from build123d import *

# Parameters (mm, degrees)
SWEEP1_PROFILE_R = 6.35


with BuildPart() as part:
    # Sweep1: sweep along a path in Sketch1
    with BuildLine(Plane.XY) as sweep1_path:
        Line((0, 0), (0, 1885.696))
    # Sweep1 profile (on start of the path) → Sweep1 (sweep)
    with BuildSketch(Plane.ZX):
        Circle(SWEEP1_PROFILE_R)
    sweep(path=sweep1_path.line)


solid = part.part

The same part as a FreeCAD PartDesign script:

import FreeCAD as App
import Part
import Sketcher

V = App.Vector
Q = App.Units.Quantity

doc = App.newDocument("Part")
body = doc.addObject("PartDesign::Body", "Body")

sketch1 = body.newObject("Sketcher::SketchObject", "Sketch")
sketch1.AttachmentSupport = (doc.getObject("XZ_Plane"), [""])
sketch1.MapMode = "FlatFace"
sketch1.addGeometry(Part.Circle(V(0, 0, 0), V(0, 0, 1), 6.35), False)
sketch1.addConstraint([
    Sketcher.Constraint("Coincident", 0, 3, -1, 1),
    Sketcher.Constraint("Diameter", 0, Q("0.5 in")),
])

sketch2 = body.newObject("Sketcher::SketchObject", "Sketch001")
sketch2.AttachmentSupport = (doc.getObject("XY_Plane"), [""])
sketch2.MapMode = "FlatFace"
sketch2.addGeometry(Part.LineSegment(V(0, 0, 0), V(0, 1885.696, 0)), False)
sketch2.addConstraint([
    Sketcher.Constraint("Vertical", 0),
    Sketcher.Constraint("Coincident", 0, 1, -1, 1),
    Sketcher.Constraint("DistanceY", 0, 1, 0, 2, Q("74.24 in")),
])
doc.recompute()

additivepipe = body.newObject("PartDesign::AdditivePipe", "AdditivePipe")
additivepipe.Profile = sketch1
additivepipe.Spine = (sketch2, ["Edge1"])

doc.recompute()
